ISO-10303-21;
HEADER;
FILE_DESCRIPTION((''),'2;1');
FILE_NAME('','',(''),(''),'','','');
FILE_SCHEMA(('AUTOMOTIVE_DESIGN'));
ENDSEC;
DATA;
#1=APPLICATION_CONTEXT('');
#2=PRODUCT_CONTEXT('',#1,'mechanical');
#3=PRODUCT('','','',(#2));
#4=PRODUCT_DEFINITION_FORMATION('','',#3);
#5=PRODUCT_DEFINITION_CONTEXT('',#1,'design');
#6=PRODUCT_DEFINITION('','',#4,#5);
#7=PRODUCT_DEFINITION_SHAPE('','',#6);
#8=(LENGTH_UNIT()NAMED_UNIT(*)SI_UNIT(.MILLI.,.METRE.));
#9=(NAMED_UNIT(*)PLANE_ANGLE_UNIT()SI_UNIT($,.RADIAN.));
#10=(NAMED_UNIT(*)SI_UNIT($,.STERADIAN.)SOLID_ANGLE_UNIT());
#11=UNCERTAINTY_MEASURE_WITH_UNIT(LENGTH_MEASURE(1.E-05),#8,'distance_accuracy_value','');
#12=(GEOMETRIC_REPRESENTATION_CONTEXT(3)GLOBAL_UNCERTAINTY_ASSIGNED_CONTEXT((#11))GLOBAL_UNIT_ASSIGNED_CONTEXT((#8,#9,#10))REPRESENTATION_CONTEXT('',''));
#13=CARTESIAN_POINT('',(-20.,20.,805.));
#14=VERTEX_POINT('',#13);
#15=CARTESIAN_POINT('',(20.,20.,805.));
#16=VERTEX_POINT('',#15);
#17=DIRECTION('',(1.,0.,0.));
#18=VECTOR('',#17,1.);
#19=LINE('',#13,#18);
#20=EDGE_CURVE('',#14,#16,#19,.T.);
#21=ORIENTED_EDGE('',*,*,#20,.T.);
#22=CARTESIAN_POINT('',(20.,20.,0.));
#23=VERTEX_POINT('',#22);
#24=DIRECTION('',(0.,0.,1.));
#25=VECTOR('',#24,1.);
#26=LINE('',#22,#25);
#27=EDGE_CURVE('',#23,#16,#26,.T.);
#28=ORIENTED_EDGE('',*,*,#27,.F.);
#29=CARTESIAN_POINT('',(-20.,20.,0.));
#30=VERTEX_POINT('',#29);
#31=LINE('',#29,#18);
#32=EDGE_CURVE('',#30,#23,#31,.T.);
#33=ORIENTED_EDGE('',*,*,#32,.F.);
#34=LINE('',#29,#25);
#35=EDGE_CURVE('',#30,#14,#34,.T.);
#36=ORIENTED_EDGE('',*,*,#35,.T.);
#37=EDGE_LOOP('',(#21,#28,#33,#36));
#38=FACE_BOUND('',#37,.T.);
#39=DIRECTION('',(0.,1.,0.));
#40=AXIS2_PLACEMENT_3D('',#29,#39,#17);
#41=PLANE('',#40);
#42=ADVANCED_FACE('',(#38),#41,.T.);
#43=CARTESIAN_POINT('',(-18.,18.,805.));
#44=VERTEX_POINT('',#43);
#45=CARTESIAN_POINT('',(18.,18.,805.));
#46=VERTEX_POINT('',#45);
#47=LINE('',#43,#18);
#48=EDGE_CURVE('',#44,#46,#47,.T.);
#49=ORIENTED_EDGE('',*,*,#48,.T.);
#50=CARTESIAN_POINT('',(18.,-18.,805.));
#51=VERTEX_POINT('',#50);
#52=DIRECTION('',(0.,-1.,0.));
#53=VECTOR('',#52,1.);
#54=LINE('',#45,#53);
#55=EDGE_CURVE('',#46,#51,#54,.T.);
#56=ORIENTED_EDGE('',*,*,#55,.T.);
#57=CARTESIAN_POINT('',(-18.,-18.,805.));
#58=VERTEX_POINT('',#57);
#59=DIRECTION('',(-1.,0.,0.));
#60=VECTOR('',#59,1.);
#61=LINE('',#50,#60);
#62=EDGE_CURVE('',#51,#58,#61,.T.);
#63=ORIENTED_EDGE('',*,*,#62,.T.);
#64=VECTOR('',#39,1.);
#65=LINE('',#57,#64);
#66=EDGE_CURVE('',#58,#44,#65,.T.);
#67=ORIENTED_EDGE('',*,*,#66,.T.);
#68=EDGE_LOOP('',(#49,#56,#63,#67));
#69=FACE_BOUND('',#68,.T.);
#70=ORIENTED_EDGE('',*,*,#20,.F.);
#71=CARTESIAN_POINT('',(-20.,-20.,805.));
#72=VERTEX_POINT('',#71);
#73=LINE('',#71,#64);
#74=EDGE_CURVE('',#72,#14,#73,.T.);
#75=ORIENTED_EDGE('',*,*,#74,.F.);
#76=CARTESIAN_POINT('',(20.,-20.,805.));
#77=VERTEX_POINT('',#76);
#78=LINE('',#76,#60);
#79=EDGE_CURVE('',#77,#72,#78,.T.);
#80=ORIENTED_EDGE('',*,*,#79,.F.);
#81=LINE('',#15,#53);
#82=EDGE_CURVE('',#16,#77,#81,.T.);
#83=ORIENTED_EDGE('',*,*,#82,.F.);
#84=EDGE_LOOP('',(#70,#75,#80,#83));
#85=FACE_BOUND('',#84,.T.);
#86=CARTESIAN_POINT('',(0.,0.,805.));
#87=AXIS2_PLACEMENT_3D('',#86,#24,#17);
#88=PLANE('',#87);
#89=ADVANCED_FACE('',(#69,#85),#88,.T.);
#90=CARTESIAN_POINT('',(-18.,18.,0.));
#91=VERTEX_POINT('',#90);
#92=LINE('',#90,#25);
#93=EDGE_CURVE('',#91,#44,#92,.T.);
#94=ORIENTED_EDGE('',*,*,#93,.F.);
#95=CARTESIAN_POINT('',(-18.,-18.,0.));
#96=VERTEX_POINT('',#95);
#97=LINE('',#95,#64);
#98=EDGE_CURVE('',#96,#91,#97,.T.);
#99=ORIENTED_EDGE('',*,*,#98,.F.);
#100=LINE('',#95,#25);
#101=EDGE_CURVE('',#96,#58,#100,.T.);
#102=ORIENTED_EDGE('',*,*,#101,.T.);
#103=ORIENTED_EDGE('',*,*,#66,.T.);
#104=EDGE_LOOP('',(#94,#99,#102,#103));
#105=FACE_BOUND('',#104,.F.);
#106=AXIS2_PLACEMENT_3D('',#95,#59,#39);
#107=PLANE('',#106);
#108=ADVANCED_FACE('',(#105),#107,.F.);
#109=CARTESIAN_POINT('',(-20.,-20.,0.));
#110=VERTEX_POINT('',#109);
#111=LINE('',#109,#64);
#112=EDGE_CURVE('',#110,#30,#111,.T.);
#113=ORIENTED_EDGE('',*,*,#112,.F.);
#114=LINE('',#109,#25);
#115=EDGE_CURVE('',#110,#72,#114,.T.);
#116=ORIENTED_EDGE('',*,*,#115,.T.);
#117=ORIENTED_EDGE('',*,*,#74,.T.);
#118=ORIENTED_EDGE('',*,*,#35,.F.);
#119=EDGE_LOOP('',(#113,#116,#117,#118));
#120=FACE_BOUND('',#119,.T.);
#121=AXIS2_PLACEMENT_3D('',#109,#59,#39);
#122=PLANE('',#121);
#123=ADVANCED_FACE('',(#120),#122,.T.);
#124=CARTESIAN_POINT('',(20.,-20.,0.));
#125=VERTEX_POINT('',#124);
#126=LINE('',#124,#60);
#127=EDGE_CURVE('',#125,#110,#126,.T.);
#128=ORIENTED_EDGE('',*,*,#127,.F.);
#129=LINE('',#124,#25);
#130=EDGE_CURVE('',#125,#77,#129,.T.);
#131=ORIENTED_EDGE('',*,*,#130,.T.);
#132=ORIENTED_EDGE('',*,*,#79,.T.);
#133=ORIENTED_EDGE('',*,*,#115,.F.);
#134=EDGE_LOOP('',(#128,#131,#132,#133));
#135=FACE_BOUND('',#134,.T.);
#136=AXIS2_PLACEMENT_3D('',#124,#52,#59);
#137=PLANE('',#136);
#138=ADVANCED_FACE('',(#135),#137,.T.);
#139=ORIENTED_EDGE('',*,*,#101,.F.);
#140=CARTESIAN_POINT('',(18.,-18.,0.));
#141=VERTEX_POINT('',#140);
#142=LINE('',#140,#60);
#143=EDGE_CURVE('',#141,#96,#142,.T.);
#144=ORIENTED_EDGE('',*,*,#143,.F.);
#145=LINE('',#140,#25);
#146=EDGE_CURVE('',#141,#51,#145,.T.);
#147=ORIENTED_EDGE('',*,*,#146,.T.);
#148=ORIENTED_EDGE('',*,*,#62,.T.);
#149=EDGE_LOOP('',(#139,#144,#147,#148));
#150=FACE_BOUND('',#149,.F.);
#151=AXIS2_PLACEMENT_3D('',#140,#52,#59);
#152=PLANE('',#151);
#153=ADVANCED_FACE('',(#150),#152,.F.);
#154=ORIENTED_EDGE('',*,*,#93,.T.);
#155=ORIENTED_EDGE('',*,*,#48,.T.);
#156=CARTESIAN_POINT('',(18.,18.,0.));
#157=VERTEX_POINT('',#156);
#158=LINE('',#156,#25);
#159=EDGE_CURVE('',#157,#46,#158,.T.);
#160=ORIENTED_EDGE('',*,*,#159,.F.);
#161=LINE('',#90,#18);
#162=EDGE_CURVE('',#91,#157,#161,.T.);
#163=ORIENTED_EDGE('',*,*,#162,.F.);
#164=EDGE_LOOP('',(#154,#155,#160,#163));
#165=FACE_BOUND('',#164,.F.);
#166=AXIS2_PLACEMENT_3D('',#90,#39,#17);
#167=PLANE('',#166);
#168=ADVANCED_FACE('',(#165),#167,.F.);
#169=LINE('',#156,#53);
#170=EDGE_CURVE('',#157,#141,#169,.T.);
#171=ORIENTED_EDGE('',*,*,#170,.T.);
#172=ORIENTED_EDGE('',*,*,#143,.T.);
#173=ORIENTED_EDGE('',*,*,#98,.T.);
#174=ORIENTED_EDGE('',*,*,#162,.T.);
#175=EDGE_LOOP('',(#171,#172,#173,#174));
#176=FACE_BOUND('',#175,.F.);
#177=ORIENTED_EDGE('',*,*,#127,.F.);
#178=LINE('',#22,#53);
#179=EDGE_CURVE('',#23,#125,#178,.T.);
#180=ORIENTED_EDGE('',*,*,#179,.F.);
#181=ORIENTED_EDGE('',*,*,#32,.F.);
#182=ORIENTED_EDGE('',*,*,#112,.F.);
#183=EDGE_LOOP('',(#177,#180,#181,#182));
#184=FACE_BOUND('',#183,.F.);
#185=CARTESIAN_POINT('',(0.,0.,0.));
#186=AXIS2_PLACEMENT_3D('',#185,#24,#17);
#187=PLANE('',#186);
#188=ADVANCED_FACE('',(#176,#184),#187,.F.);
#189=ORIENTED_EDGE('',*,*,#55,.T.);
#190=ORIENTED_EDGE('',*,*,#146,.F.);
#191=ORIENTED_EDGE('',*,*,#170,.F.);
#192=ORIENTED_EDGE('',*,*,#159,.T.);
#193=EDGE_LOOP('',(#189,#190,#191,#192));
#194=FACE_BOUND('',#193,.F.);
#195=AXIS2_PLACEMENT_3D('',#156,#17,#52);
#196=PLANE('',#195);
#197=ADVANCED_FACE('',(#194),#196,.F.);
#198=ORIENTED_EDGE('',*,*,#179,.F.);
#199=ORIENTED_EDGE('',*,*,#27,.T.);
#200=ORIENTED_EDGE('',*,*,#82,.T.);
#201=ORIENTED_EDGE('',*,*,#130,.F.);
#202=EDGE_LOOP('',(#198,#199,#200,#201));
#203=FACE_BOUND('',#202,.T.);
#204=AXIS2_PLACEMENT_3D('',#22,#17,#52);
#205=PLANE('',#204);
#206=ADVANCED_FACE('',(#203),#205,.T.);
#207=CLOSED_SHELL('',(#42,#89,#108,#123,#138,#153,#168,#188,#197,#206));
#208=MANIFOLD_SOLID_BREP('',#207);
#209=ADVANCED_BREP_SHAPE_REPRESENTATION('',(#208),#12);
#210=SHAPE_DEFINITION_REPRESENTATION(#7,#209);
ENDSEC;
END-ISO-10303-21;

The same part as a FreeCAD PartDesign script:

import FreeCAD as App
import Part
import Sketcher
from FreeCAD import Vector


def add_polygon(sketch, points):
    """Adds a closed chain of lines whose ends are joined by coincident constraints."""
    first, n = sketch.GeometryCount, len(points)
    for a, b in zip(points, points[1:] + points[:1]):
        sketch.addGeometry(Part.LineSegment(App.Vector(*a, 0), App.Vector(*b, 0)), False)
    for i in range(n):
        sketch.addConstraint(Sketcher.Constraint("Coincident", first + i, 2, first + (i + 1) % n, 1))

doc = App.newDocument("Part")
params = doc.addObject("Spreadsheet::Sheet", "Params")
for row, (alias, value) in enumerate([
    ("sketch1_width", "40 mm"),
    ("pad1_length", "805 mm"),
], start=1):
    params.set(f"A{row}", alias)
    params.set(f"B{row}", "=" + value)
    params.setAlias(f"B{row}", alias)

body = doc.addObject("PartDesign::Body", "Body")

sketch1 = body.newObject("Sketcher::SketchObject", "Sketch")
sketch1.AttachmentSupport = (doc.getObject("XY_Plane"), [""])
sketch1.MapMode = "FlatFace"
add_polygon(sketch1, [(20, 20), (-20, 20), (-20, -20), (20, -20)])
add_polygon(sketch1, [(-18, -18), (-18, 18), (18, 18), (18, -18)])
sketch1.addConstraint(Sketcher.Constraint("Horizontal", 0))
sketch1.addConstraint(Sketcher.Constraint("Vertical", 1))
sketch1.addConstraint(Sketcher.Constraint("Horizontal", 2))
sketch1.addConstraint(Sketcher.Constraint("Vertical", 3))
sketch1.addConstraint(Sketcher.Constraint("Vertical", 4))
sketch1.addConstraint(Sketcher.Constraint("Horizontal", 5))
sketch1.addConstraint(Sketcher.Constraint("Vertical", 6))
sketch1.addConstraint(Sketcher.Constraint("Horizontal", 7))
sketch1.addConstraint(Sketcher.Constraint("Symmetric", 0, 2, 2, 2, -1, 1))
sketch1.addConstraint(Sketcher.Constraint("Symmetric", 4, 2, 6, 2, -1, 1))
sketch1.addConstraint(Sketcher.Constraint("Equal", 2, 1))
sketch1.addConstraint(Sketcher.Constraint("Equal", 7, 4))
sketch1.addConstraint(Sketcher.Constraint("DistanceX", 0, 2, 0, 1, 40.0))
sketch1.addConstraint(Sketcher.Constraint("DistanceX", 0, 2, 4, 2, 2.0))
sketch1.setExpression("Constraints[20]", "Params.sketch1_width")
pad1 = body.newObject("PartDesign::Pad", "Pad")
pad1.Profile = sketch1
pad1.setExpression("Length", "Params.pad1_length")

doc.recompute()
